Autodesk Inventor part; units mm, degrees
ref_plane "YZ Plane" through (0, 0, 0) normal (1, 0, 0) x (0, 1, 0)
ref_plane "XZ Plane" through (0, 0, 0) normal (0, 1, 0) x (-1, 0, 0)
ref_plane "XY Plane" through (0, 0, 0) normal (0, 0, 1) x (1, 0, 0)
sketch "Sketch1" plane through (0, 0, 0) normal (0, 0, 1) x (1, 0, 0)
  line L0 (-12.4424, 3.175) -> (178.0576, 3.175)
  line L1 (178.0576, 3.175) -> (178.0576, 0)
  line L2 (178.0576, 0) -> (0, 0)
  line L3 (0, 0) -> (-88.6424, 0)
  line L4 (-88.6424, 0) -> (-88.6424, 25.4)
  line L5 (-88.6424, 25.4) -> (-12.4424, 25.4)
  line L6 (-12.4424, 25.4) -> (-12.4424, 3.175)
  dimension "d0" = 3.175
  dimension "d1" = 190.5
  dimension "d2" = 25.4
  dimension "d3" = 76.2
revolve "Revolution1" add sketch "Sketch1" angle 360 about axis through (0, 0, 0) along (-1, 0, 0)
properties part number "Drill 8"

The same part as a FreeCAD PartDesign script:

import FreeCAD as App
import Part
import Sketcher

V = App.Vector
Q = App.Units.Quantity


def add_polygon(sketch, points):
    """Adds a closed chain of lines whose ends are joined by coincident constraints."""
    first, n = sketch.GeometryCount, len(points)
    for a, b in zip(points, points[1:] + points[:1]):
        sketch.addGeometry(Part.LineSegment(App.Vector(*a, 0), App.Vector(*b, 0)), False)
    for i in range(n):
        sketch.addConstraint(Sketcher.Constraint("Coincident", first + i, 2, first + (i + 1) % n, 1))

doc = App.newDocument("Part")
body = doc.addObject("PartDesign::Body", "Body")

sketch1 = body.newObject("Sketcher::SketchObject", "Sketch")
sketch1.AttachmentSupport = (doc.getObject("XY_Plane"), [""])
sketch1.MapMode = "FlatFace"
add_polygon(sketch1, [(178.1, 3.2), (-12.4, 3.2), (-12.4, 25.4), (-88.6, 25.4), (-88.6, 0), (178.1, 0)])
sketch1.addConstraint([
    Sketcher.Constraint("Horizontal", 0),
    Sketcher.Constraint("Vertical", 1),
    Sketcher.Constraint("Horizontal", 2),
    Sketcher.Constraint("Vertical", 3),
    Sketcher.Constraint("Horizontal", 4),
    Sketcher.Constraint("Vertical", 5),
    Sketcher.Constraint("PointOnObject", 3, 2, -1),
    Sketcher.Constraint("DistanceX", 2, 2, 2, 1, Q("3 in")),
    Sketcher.Constraint("DistanceY", 3, 2, 3, 1, Q("1 in")),
    Sketcher.Constraint("DistanceX", 0, 2, 0, 1, Q("7.5 in")),
    Sketcher.Constraint("DistanceY", 5, 1, 5, 2, Q("0.125 in")),
    Sketcher.Constraint("DistanceX", 0, 2, -1, 1, 12.4424),
])
revolution = body.newObject("PartDesign::Revolution", "Revolution")
revolution.Profile = sketch1
revolution.ReferenceAxis = (sketch1, ["H_Axis"])
revolution.Angle = 360

doc.recompute()
